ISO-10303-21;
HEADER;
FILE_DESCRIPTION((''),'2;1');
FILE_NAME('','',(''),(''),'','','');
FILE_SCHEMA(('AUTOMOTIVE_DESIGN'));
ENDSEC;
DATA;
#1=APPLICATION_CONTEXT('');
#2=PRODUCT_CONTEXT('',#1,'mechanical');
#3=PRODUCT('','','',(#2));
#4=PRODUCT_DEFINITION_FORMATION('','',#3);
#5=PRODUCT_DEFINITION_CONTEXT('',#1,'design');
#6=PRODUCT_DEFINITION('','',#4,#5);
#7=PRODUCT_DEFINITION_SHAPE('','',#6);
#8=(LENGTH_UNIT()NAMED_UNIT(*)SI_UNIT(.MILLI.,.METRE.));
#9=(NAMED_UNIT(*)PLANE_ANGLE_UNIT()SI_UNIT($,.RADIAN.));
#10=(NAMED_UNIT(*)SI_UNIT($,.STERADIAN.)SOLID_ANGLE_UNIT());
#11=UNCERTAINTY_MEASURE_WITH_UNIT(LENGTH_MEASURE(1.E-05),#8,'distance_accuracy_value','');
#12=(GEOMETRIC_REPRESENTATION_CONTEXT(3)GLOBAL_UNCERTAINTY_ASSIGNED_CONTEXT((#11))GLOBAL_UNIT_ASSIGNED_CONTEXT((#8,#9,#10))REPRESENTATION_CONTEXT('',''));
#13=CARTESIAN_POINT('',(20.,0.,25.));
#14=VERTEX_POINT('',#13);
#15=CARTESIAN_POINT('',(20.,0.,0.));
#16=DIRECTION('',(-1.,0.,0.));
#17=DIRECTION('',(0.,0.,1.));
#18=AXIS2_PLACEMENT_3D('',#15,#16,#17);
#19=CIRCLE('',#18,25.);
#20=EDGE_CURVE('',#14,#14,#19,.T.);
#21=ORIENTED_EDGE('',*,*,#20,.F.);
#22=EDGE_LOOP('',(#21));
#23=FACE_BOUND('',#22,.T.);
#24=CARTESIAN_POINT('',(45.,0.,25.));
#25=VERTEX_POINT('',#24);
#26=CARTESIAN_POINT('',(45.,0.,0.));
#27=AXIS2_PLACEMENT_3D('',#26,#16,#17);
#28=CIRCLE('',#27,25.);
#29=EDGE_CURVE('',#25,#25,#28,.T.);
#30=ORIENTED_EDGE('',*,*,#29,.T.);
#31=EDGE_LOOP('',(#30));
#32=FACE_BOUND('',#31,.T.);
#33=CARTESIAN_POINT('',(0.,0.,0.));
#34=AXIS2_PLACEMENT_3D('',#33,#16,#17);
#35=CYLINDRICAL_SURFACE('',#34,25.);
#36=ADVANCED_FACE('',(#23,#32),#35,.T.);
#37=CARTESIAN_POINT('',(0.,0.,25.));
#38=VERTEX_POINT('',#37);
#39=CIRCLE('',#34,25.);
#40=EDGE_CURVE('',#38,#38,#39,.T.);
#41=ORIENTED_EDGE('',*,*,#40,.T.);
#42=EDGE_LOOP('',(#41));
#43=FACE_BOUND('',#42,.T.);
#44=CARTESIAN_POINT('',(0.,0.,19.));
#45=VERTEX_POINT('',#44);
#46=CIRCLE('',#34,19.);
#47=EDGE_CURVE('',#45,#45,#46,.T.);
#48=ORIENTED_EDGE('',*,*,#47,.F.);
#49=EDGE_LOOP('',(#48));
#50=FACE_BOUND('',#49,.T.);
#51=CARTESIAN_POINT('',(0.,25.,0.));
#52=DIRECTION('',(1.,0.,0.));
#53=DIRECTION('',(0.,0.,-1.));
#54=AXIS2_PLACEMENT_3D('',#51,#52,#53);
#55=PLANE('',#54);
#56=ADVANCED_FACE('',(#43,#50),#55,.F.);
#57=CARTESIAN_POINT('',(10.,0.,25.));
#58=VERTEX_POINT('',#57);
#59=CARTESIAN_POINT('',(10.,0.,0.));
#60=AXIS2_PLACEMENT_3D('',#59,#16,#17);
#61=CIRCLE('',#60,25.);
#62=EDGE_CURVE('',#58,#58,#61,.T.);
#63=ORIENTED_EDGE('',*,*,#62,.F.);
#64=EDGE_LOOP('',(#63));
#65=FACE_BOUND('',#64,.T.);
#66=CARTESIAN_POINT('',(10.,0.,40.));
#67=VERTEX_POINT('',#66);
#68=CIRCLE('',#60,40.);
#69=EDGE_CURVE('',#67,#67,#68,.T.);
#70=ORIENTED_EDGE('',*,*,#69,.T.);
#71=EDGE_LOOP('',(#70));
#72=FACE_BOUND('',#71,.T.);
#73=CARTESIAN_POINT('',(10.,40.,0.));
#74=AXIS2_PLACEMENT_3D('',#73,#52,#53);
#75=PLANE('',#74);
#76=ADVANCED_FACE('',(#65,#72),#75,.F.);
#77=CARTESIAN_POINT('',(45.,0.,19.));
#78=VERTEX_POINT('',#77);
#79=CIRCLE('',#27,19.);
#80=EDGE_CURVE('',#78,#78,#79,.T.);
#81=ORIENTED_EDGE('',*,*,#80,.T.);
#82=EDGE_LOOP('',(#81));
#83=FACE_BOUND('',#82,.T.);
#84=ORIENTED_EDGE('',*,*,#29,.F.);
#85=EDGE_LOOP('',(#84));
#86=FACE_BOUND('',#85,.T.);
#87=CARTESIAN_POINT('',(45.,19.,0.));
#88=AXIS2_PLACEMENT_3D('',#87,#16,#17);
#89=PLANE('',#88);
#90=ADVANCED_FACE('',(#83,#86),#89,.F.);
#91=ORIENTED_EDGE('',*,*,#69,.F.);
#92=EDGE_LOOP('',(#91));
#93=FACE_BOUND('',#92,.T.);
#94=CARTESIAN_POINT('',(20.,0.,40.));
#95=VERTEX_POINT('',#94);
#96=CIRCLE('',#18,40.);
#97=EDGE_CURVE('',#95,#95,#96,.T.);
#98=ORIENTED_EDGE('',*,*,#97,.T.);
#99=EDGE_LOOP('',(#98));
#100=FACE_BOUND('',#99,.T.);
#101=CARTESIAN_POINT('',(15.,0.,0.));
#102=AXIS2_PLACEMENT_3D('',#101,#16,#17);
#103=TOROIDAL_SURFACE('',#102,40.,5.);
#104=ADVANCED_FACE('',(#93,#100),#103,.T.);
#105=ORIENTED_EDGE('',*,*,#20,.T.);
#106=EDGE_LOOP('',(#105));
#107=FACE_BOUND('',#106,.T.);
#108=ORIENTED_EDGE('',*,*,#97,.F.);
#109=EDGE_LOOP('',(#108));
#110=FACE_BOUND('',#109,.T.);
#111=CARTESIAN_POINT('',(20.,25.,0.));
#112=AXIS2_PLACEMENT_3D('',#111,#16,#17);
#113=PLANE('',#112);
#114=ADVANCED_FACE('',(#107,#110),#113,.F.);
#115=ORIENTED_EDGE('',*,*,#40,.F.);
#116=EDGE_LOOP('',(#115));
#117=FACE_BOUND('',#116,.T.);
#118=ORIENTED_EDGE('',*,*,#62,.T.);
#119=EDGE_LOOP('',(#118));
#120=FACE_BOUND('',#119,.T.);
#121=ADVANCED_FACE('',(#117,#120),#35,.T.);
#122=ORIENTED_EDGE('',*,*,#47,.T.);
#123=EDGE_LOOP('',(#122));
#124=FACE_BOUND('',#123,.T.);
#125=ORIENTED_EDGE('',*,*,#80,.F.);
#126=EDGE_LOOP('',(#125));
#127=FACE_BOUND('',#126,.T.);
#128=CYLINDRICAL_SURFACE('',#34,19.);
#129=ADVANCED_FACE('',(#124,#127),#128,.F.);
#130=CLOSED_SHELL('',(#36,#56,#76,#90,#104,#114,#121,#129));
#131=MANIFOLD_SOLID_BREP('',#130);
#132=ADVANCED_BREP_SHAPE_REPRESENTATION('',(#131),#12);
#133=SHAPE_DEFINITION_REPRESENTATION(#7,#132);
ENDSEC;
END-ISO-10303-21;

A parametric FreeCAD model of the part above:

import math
import FreeCAD as App
import Part
import Sketcher

V = App.Vector
Q = App.Units.Quantity

doc = App.newDocument("Part")
params = doc.addObject("Spreadsheet::Sheet", "Params")
for row, (alias, value) in enumerate([
    ("sketch1_radius", "5 mm"),
    ("sketch1_width", "45 mm"),
    ("sketch1_width2", "25 mm"),
    ("sketch1_height", "6 mm"),
    ("sketch1_height2", "15 mm"),
    ("revolution_angle", "360 deg"),
], start=1):
    params.set(f"A{row}", alias)
    params.set(f"B{row}", "=" + value)
    params.setAlias(f"B{row}", alias)

body = doc.addObject("PartDesign::Body", "Body")

# Sketch on XY plane
sketch1 = body.newObject("Sketcher::SketchObject", "Sketch")
sketch1.AttachmentSupport = (doc.getObject("XY_Plane"), [""])
sketch1.MapMode = "FlatFace"
sketch1.addGeometry([
    Part.LineSegment(V(0, 19, 0), V(45, 19, 0)),  # 0
    Part.LineSegment(V(45, 19, 0), V(45, 25, 0)),  # 1
    Part.LineSegment(V(45, 25, 0), V(20, 25, 0)),  # 2
    Part.LineSegment(V(20, 25, 0), V(20, 40, 0)),  # 3
    Part.ArcOfCircle(Part.Circle(V(15, 40, 0), V(0, 0, 1), 5), math.radians(0), math.radians(180)),  # 4
    Part.LineSegment(V(10, 40, 0), V(10, 25, 0)),  # 5
    Part.LineSegment(V(10, 25, 0), V(0, 25, 0)),  # 6
    Part.LineSegment(V(0, 25, 0), V(0, 19, 0)),  # 7
], False)
sketch1.addConstraint([
    Sketcher.Constraint("Coincident", 0, 2, 1, 1),
    Sketcher.Constraint("Coincident", 1, 2, 2, 1),
    Sketcher.Constraint("Coincident", 2, 2, 3, 1),
    Sketcher.Constraint("Tangent", 3, 2, 4, 1),
    Sketcher.Constraint("Tangent", 4, 2, 5, 1),
    Sketcher.Constraint("Coincident", 5, 2, 6, 1),
    Sketcher.Constraint("Coincident", 6, 2, 7, 1),
    Sketcher.Constraint("Coincident", 7, 2, 0, 1),
    Sketcher.Constraint("Horizontal", 0),
    Sketcher.Constraint("Vertical", 1),
    Sketcher.Constraint("Horizontal", 2),
    Sketcher.Constraint("Vertical", 3),
    Sketcher.Constraint("Vertical", 5),
    Sketcher.Constraint("Horizontal", 6),
    Sketcher.Constraint("Vertical", 7),
    Sketcher.Constraint("PointOnObject", 6, 2, -2),
    Sketcher.Constraint("Horizontal", 2, 2, 5, 2),
    Sketcher.Constraint("Radius", 4, Q("5 mm")),
    Sketcher.Constraint("DistanceX", 0, 1, 0, 2, Q("45 mm")),
    Sketcher.Constraint("DistanceX", 2, 2, 2, 1, Q("25 mm")),
    Sketcher.Constraint("DistanceY", 1, 1, 1, 2, Q("6 mm")),
    Sketcher.Constraint("DistanceY", 3, 1, 3, 2, Q("15 mm")),
    Sketcher.Constraint("DistanceY", -1, 1, 4, 3, Q("40 mm")),
])
sketch1.setExpression("Constraints[17]", "Params.sketch1_radius")
sketch1.setExpression("Constraints[18]", "Params.sketch1_width")
sketch1.setExpression("Constraints[19]", "Params.sketch1_width2")
sketch1.setExpression("Constraints[20]", "Params.sketch1_height")
sketch1.setExpression("Constraints[21]", "Params.sketch1_height2")
revolution = body.newObject("PartDesign::Revolution", "Revolution")
revolution.Profile = sketch1
revolution.ReferenceAxis = (sketch1, ["H_Axis"])
revolution.setExpression("Angle", "Params.revolution_angle")

doc.recompute()
